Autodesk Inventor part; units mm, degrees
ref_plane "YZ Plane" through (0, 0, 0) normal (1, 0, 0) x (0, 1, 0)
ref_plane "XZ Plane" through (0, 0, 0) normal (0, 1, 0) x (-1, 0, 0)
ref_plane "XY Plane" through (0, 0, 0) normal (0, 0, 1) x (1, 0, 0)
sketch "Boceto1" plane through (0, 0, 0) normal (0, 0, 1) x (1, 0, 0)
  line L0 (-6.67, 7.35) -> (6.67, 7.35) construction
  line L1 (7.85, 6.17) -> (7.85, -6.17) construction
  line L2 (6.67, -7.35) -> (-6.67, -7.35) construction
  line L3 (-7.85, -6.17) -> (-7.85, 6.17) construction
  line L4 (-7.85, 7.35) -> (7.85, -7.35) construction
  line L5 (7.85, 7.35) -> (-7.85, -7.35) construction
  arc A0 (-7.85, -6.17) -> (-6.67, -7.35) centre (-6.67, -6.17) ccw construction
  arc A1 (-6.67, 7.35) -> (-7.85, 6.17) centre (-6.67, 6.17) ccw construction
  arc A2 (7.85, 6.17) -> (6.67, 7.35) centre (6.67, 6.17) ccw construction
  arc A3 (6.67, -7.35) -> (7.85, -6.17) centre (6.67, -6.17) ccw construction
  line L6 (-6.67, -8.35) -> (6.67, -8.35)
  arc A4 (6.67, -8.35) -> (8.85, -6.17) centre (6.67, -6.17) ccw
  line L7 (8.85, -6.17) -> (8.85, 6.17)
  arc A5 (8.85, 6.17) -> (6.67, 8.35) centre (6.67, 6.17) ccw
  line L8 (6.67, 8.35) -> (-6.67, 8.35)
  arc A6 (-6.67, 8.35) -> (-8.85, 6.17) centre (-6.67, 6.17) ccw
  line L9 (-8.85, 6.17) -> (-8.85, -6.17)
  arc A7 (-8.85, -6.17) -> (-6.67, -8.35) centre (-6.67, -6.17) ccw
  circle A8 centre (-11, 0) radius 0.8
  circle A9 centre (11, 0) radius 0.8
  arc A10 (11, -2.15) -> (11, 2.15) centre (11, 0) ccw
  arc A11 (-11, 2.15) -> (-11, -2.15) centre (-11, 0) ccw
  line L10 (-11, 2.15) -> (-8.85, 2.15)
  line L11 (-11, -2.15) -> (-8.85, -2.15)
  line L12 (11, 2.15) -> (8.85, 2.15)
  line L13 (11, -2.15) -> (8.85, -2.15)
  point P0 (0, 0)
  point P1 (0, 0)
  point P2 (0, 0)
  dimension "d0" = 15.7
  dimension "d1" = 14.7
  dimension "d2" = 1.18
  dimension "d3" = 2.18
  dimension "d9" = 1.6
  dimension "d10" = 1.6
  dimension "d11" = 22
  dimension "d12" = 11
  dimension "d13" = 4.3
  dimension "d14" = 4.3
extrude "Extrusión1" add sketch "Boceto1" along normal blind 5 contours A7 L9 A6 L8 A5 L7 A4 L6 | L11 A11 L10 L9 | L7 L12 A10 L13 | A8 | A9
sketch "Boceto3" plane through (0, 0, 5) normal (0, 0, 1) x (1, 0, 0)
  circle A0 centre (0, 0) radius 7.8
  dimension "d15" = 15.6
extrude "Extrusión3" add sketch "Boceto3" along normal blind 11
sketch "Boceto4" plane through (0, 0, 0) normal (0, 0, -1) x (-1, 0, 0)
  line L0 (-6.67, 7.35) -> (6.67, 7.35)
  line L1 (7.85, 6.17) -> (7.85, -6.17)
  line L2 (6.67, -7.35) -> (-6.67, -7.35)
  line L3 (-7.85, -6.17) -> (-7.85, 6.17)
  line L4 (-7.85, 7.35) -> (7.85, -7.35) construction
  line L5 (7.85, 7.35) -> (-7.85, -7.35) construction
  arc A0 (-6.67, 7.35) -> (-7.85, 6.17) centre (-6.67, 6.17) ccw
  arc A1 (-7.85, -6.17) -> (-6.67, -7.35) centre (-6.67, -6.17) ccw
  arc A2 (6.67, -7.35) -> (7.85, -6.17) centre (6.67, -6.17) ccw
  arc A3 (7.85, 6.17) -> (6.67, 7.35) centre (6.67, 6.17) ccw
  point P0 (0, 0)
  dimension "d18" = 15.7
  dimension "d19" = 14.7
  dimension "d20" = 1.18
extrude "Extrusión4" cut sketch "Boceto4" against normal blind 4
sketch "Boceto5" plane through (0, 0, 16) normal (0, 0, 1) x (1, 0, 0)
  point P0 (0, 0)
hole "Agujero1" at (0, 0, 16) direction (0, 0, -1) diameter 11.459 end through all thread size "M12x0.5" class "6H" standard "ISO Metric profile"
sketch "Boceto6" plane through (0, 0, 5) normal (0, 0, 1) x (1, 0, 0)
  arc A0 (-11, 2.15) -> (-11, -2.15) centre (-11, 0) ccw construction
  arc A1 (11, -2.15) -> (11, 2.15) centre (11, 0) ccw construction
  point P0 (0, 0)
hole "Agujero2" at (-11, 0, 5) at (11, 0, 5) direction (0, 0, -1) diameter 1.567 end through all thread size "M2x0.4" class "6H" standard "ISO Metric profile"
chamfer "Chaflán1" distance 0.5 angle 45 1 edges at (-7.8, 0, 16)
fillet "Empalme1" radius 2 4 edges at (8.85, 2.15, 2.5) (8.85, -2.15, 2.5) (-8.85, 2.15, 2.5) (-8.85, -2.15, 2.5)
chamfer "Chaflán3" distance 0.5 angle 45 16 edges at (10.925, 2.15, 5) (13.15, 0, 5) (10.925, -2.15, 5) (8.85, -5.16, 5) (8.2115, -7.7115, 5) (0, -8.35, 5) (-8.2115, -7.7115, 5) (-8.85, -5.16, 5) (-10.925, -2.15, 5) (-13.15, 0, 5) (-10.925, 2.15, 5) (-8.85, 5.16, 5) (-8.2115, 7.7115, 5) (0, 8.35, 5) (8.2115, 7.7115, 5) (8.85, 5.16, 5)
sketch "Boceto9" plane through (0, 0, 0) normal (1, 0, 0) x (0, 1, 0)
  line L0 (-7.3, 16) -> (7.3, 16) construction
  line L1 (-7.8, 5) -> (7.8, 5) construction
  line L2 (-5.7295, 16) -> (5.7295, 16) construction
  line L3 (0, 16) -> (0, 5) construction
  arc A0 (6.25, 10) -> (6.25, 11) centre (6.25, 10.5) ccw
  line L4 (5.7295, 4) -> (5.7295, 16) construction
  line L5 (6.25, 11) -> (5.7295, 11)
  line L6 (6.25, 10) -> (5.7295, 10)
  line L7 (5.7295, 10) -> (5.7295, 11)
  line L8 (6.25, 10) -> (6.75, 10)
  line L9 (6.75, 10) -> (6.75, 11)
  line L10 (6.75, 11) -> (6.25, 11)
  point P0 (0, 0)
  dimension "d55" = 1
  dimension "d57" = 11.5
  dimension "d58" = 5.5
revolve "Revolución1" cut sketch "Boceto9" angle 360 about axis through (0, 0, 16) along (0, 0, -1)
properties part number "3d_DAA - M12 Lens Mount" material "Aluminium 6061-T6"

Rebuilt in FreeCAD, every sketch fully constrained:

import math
import FreeCAD as App
import Part
import Sketcher

V = App.Vector
Q = App.Units.Quantity


def edges_at(feature, points):
    """Names of the edges that pass closest to the given points."""
    edges = feature.Shape.Edges
    near = lambda p: min(range(len(edges)), key=lambda i: edges[i].distToShape(Part.Vertex(*p))[0])
    return sorted({f"Edge{near(p) + 1}" for p in points})


def add_polygon(sketch, points):
    """Adds a closed chain of lines whose ends are joined by coincident constraints."""
    first, n = sketch.GeometryCount, len(points)
    for a, b in zip(points, points[1:] + points[:1]):
        sketch.addGeometry(Part.LineSegment(App.Vector(*a, 0), App.Vector(*b, 0)), False)
    for i in range(n):
        sketch.addConstraint(Sketcher.Constraint("Coincident", first + i, 2, first + (i + 1) % n, 1))

doc = App.newDocument("Part")
body = doc.addObject("PartDesign::Body", "Body")

# Sketch on XY plane
sketch1 = doc.addObject("Sketcher::SketchObject", "Sketch")
body.addObject(sketch1)
sketch1.AttachmentSupport = (doc.XY_Plane, [""])
sketch1.MapMode = "FlatFace"
sketch1.addGeometry([
    Part.ArcOfCircle(Part.Circle(V(-6.67, -6.17, 0), V(0, 0, 1), 2.18), math.radians(180), math.radians(270)),  # 0
    Part.LineSegment(V(-6.67, -8.35, 0), V(6.67, -8.35, 0)),  # 1
    Part.ArcOfCircle(Part.Circle(V(6.67, -6.17, 0), V(0, 0, 1), 2.18), math.radians(-90), math.radians(0)),  # 2
    Part.LineSegment(V(8.85, -6.17, 0), V(8.85, -2.15, 0)),  # 3
    Part.LineSegment(V(8.85, -2.15, 0), V(11, -2.15, 0)),  # 4
    Part.ArcOfCircle(Part.Circle(V(11, 0, 0), V(0, 0, 1), 2.15), math.radians(-90), math.radians(90)),  # 5
    Part.LineSegment(V(11, 2.15, 0), V(8.85, 2.15, 0)),  # 6
    Part.LineSegment(V(8.85, 2.15, 0), V(8.85, 6.17, 0)),  # 7
    Part.ArcOfCircle(Part.Circle(V(6.67, 6.17, 0), V(0, 0, 1), 2.18), math.radians(0), math.radians(90)),  # 8
    Part.LineSegment(V(6.67, 8.35, 0), V(-6.67, 8.35, 0)),  # 9
    Part.ArcOfCircle(Part.Circle(V(-6.67, 6.17, 0), V(0, 0, 1), 2.18), math.radians(90), math.radians(180)),  # 10
    Part.LineSegment(V(-8.85, 6.17, 0), V(-8.85, 2.15, 0)),  # 11
    Part.LineSegment(V(-8.85, 2.15, 0), V(-11, 2.15, 0)),  # 12
    Part.ArcOfCircle(Part.Circle(V(-11, 0, 0), V(0, 0, 1), 2.15), math.radians(90), math.radians(270)),  # 13
    Part.LineSegment(V(-11, -2.15, 0), V(-8.85, -2.15, 0)),  # 14
    Part.LineSegment(V(-8.85, -2.15, 0), V(-8.85, -6.17, 0)),  # 15
], False)
sketch1.addConstraint([
    Sketcher.Constraint("Tangent", 0, 2, 1, 1),
    Sketcher.Constraint("Tangent", 1, 2, 2, 1),
    Sketcher.Constraint("Tangent", 2, 2, 3, 1),
    Sketcher.Constraint("Coincident", 3, 2, 4, 1),
    Sketcher.Constraint("Tangent", 4, 2, 5, 1),
    Sketcher.Constraint("Tangent", 5, 2, 6, 1),
    Sketcher.Constraint("Coincident", 6, 2, 7, 1),
    Sketcher.Constraint("Tangent", 7, 2, 8, 1),
    Sketcher.Constraint("Tangent", 8, 2, 9, 1),
    Sketcher.Constraint("Tangent", 9, 2, 10, 1),
    Sketcher.Constraint("Tangent", 10, 2, 11, 1),
    Sketcher.Constraint("Coincident", 11, 2, 12, 1),
    Sketcher.Constraint("Tangent", 12, 2, 13, 1),
    Sketcher.Constraint("Tangent", 13, 2, 14, 1),
    Sketcher.Constraint("Coincident", 14, 2, 15, 1),
    Sketcher.Constraint("Tangent", 15, 2, 0, 1),
    Sketcher.Constraint("Horizontal", 1),
    Sketcher.Constraint("Vertical", 3),
    Sketcher.Constraint("Horizontal", 4),
    Sketcher.Constraint("Horizontal", 6),
    Sketcher.Constraint("Vertical", 7),
    Sketcher.Constraint("Horizontal", 9),
    Sketcher.Constraint("Vertical", 11),
    Sketcher.Constraint("Horizontal", 12),
    Sketcher.Constraint("Horizontal", 14),
    Sketcher.Constraint("Vertical", 15),
    Sketcher.Constraint("Equal", 0, 2),
    Sketcher.Constraint("Equal", 2, 8),
    Sketcher.Constraint("Equal", 8, 10),
    Sketcher.Constraint("Equal", 5, 13),
    Sketcher.Constraint("Symmetric", 0, 3, 8, 3, -1, 1),
    Sketcher.Constraint("Symmetric", 5, 3, 13, 3, -1, 1),
    Sketcher.Constraint("Symmetric", 6, 2, 11, 2, -2),
    Sketcher.Constraint("Vertical", 2, 3, 8, 3),
    Sketcher.Constraint("Radius", 0, Q("2.18 mm")),
    Sketcher.Constraint("Radius", 5, Q("2.15 mm")),
    Sketcher.Constraint("DistanceX", -1, 1, 5, 3, Q("11 mm")),
    Sketcher.Constraint("DistanceX", 1, 1, 1, 2, Q("13.34 mm")),
    Sketcher.Constraint("DistanceY", 3, 1, 3, 2, Q("4.02 mm")),
])
pad1 = doc.addObject("PartDesign::Pad", "Pad")
body.addObject(pad1)
pad1.Profile = sketch1
pad1.Length = 5

# Sketch on XY plane
sketch2 = doc.addObject("Sketcher::SketchObject", "Sketch001")
body.addObject(sketch2)
sketch2.AttachmentSupport = (doc.XY_Plane, [""])
sketch2.MapMode = "FlatFace"
sketch2.AttachmentOffset = App.Placement(V(0, 0, 5), App.Rotation())
sketch2.addGeometry(Part.Circle(V(0, 0, 0), V(0, 0, 1), 7.8), False)
sketch2.addConstraint([
    Sketcher.Constraint("Coincident", 0, 3, -1, 1),
    Sketcher.Constraint("Diameter", 0, Q("15.6 mm")),
])
pad2 = doc.addObject("PartDesign::Pad", "Pad001")
body.addObject(pad2)
pad2.Profile = sketch2
pad2.Length = 11

# Sketch on XY plane
sketch3 = doc.addObject("Sketcher::SketchObject", "Sketch002")
body.addObject(sketch3)
sketch3.AttachmentSupport = (doc.XY_Plane, [""])
sketch3.MapMode = "FlatFace"
sketch3.addGeometry([
    Part.LineSegment(V(-6.67, 7.35, 0), V(6.67, 7.35, 0)),  # 0
    Part.ArcOfCircle(Part.Circle(V(6.67, 6.17, 0), V(0, 0, 1), 1.18), math.radians(0), math.radians(90)),  # 1
    Part.LineSegment(V(7.85, 6.17, 0), V(7.85, -6.17, 0)),  # 2
    Part.ArcOfCircle(Part.Circle(V(6.67, -6.17, 0), V(0, 0, 1), 1.18), math.radians(-90), math.radians(0)),  # 3
    Part.LineSegment(V(6.67, -7.35, 0), V(-6.67, -7.35, 0)),  # 4
    Part.ArcOfCircle(Part.Circle(V(-6.67, -6.17, 0), V(0, 0, 1), 1.18), math.radians(180), math.radians(270)),  # 5
    Part.LineSegment(V(-7.85, -6.17, 0), V(-7.85, 6.17, 0)),  # 6
    Part.ArcOfCircle(Part.Circle(V(-6.67, 6.17, 0), V(0, 0, 1), 1.18), math.radians(90), math.radians(180)),  # 7
], False)
sketch3.addConstraint([
    Sketcher.Constraint("Tangent", 0, 2, 1, 2),
    Sketcher.Constraint("Tangent", 1, 1, 2, 1),
    Sketcher.Constraint("Tangent", 2, 2, 3, 2),
    Sketcher.Constraint("Tangent", 3, 1, 4, 1),
    Sketcher.Constraint("Tangent", 4, 2, 5, 2),
    Sketcher.Constraint("Tangent", 5, 1, 6, 1),
    Sketcher.Constraint("Tangent", 6, 2, 7, 2),
    Sketcher.Constraint("Tangent", 7, 1, 0, 1),
    Sketcher.Constraint("Horizontal", 0),
    Sketcher.Constraint("Vertical", 2),
    Sketcher.Constraint("Horizontal", 4),
    Sketcher.Constraint("Vertical", 6),
    Sketcher.Constraint("Equal", 1, 3),
    Sketcher.Constraint("Equal", 3, 5),
    Sketcher.Constraint("Equal", 5, 7),
    Sketcher.Constraint("Symmetric", 1, 3, 5, 3, -1, 1),
    Sketcher.Constraint("Radius", 1, Q("1.18 mm")),
    Sketcher.Constraint("DistanceX", 0, 1, 0, 2, Q("13.34 mm")),
    Sketcher.Constraint("DistanceY", 2, 2, 2, 1, Q("12.34 mm")),
])
pocket1 = doc.addObject("PartDesign::Pocket", "Pocket")
body.addObject(pocket1)
pocket1.Profile = sketch3
pocket1.Length = 4
pocket1.Reversed = True

# Sketch on XY plane
sketch4 = doc.addObject("Sketcher::SketchObject", "Sketch003")
body.addObject(sketch4)
sketch4.AttachmentSupport = (doc.XY_Plane, [""])
sketch4.MapMode = "FlatFace"
sketch4.AttachmentOffset = App.Placement(V(0, 0, 16), App.Rotation())
sketch4.addGeometry(Part.Circle(V(0, 0, 0), V(0, 0, 1), 5.7295), False)
sketch4.addConstraint([
    Sketcher.Constraint("Coincident", 0, 3, -1, 1),
    Sketcher.Constraint("Diameter", 0, Q("11.459 mm")),
])
doc.recompute()
hole = doc.addObject("PartDesign::Hole", "Hole")
body.addObject(hole)
hole.Profile = sketch4
hole.ThreadType = "None"
hole.Diameter = 11.459
hole.DepthType = "ThroughAll"

# Sketch on XY plane
sketch5 = doc.addObject("Sketcher::SketchObject", "Sketch004")
body.addObject(sketch5)
sketch5.AttachmentSupport = (doc.XY_Plane, [""])
sketch5.MapMode = "FlatFace"
sketch5.AttachmentOffset = App.Placement(V(0, 0, 5), App.Rotation())
sketch5.addGeometry([
    Part.Circle(V(-11, 0, 0), V(0, 0, 1), 0.7835),
    Part.Circle(V(11, 0, 0), V(0, 0, 1), 0.7835),
], False)
sketch5.addConstraint([
    Sketcher.Constraint("Equal", 0, 1),
    Sketcher.Constraint("Symmetric", 0, 3, 1, 3, -1, 1),
    Sketcher.Constraint("PointOnObject", 0, 3, -1),
    Sketcher.Constraint("Diameter", 0, Q("1.567 mm")),
    Sketcher.Constraint("DistanceX", 0, 3, -1, 1, Q("11 mm")),
])
doc.recompute()
hole2 = doc.addObject("PartDesign::Hole", "Hole001")
body.addObject(hole2)
hole2.Profile = sketch5
hole2.ThreadType = "None"
hole2.Diameter = 1.567
hole2.DepthType = "ThroughAll"
doc.recompute()

chamfer = doc.addObject("PartDesign::Chamfer", "Chamfer")
body.addObject(chamfer)
chamfer.Base = (hole2, edges_at(hole2, [(-7.8, 0, 16)]))
chamfer.Size = 0.5
doc.recompute()

fillet = doc.addObject("PartDesign::Fillet", "Fillet")
body.addObject(fillet)
fillet.Base = (chamfer, edges_at(chamfer, [
    (8.85, 2.15, 2.5),
    (8.85, -2.15, 2.5),
    (-8.85, 2.15, 2.5),
    (-8.85, -2.15, 2.5),
]))
fillet.Radius = 2
doc.recompute()

chamfer2 = doc.addObject("PartDesign::Chamfer", "Chamfer001")
body.addObject(chamfer2)
chamfer2.Base = (fillet, edges_at(fillet, [
    (10.925, 2.15, 5),
    (13.15, 0, 5),
    (10.925, -2.15, 5),
    (8.85, -5.16, 5),
    (8.211, -7.712, 5),
    (0, -8.35, 5),
    (-8.211, -7.712, 5),
    (-8.85, -5.16, 5),
    (-10.925, -2.15, 5),
    (-13.15, 0, 5),
    (-10.925, 2.15, 5),
    (-8.85, 5.16, 5),
    (-8.211, 7.712, 5),
    (0, 8.35, 5),
    (8.211, 7.712, 5),
    (8.85, 5.16, 5),
]))
chamfer2.Size = 0.5

# Sketch on YZ plane
sketch6 = doc.addObject("Sketcher::SketchObject", "Sketch005")
body.addObject(sketch6)
sketch6.AttachmentSupport = (doc.YZ_Plane, [""])
sketch6.MapMode = "FlatFace"
add_polygon(sketch6, [(5.7295, 10), (6.75, 10), (6.75, 11), (5.7295, 11)])  # lines 0-3
sketch6.addConstraint([
    Sketcher.Constraint("Horizontal", 0),
    Sketcher.Constraint("Vertical", 1),
    Sketcher.Constraint("Horizontal", 2),
    Sketcher.Constraint("Vertical", 3),
    Sketcher.Constraint("DistanceY", 1, 1, 1, 2, Q("1 mm")),
    Sketcher.Constraint("DistanceY", -1, 1, 0, 2, Q("10 mm")),
    Sketcher.Constraint("DistanceX", -1, 1, 0, 2, Q("6.75 mm")),
    Sketcher.Constraint("DistanceX", 0, 1, 0, 2, Q("1.0205 mm")),
])
groove = doc.addObject("PartDesign::Groove", "Groove")
body.addObject(groove)
groove.Profile = sketch6
groove.ReferenceAxis = (sketch6, ["V_Axis"])
groove.Angle = 360

doc.recompute()
